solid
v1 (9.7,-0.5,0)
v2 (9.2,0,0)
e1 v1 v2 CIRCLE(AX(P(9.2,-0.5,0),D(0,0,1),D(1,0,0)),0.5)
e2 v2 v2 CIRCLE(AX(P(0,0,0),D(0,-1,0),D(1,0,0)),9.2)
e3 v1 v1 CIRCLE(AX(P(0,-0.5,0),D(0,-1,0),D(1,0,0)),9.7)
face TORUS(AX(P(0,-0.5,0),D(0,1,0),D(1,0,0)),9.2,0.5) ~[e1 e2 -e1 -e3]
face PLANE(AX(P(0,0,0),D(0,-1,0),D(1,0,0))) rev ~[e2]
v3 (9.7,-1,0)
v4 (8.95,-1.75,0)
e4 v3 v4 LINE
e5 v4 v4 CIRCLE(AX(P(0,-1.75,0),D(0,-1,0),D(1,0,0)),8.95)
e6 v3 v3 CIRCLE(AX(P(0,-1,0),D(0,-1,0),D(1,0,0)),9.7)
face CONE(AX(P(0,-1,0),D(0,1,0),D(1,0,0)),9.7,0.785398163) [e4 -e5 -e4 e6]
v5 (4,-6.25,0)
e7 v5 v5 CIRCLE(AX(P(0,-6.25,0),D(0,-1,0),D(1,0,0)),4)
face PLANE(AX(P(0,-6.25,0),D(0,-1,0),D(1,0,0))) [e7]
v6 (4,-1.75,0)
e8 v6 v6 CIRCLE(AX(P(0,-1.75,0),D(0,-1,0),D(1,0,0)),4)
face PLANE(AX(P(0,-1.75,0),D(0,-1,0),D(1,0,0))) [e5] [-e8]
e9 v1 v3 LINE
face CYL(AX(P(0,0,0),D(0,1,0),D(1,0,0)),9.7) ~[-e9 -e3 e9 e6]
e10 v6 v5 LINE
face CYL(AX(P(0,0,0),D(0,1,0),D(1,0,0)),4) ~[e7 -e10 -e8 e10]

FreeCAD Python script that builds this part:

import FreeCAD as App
import Part
import Sketcher


def edges_at(feature, points):
    """Names of the edges that pass closest to the given points."""
    edges = feature.Shape.Edges
    near = lambda p: min(range(len(edges)), key=lambda i: edges[i].distToShape(Part.Vertex(*p))[0])
    return sorted({f"Edge{near(p) + 1}" for p in points})

doc = App.newDocument("Part")
params = doc.addObject("Spreadsheet::Sheet", "Params")
for row, (alias, value) in enumerate([
    ("sketch1_diameter", "8 mm"),
    ("pad1_length", "6.25 mm"),
    ("sketch2_diameter", "8 mm"),
    ("sketch2_diameter2", "19.4 mm"),
    ("pad2_length", "1.75 mm"),
    ("chamfer_size", "0.75 mm"),
    ("fillet_radius", "0.5 mm"),
], start=1):
    params.set(f"A{row}", alias)
    params.set(f"B{row}", "=" + value)
    params.setAlias(f"B{row}", alias)

body = doc.addObject("PartDesign::Body", "Body")

# Sketch on XZ plane
sketch1 = doc.addObject("Sketcher::SketchObject", "Sketch")
body.addObject(sketch1)
sketch1.AttachmentSupport = (doc.XZ_Plane, [""])
sketch1.MapMode = "FlatFace"
sketch1.addGeometry(Part.Circle(App.Vector(0, 0, 0), App.Vector(0, 0, 1), 4), False)
sketch1.addConstraint(Sketcher.Constraint("Coincident", 0, 3, -1, 1))
sketch1.addConstraint(Sketcher.Constraint("Diameter", 0, 8.0))
sketch1.setExpression("Constraints[1]", "Params.sketch1_diameter")
pad1 = doc.addObject("PartDesign::Pad", "Pad")
body.addObject(pad1)
pad1.Profile = sketch1
pad1.setExpression("Length", "Params.pad1_length")

# Sketch on XZ plane
sketch2 = doc.addObject("Sketcher::SketchObject", "Sketch001")
body.addObject(sketch2)
sketch2.AttachmentSupport = (doc.XZ_Plane, [""])
sketch2.MapMode = "FlatFace"
sketch2.addGeometry(Part.Circle(App.Vector(0, 0, 0), App.Vector(0, 0, 1), 9.7), False)
sketch2.addGeometry(Part.Circle(App.Vector(0, 0, 0), App.Vector(0, 0, 1), 4), False)
sketch2.addConstraint(Sketcher.Constraint("Coincident", 0, 3, -1, 1))
sketch2.addConstraint(Sketcher.Constraint("Coincident", 1, 3, -1, 1))
sketch2.addConstraint(Sketcher.Constraint("Diameter", 1, 8.0))
sketch2.addConstraint(Sketcher.Constraint("Diameter", 0, 19.4))
sketch2.setExpression("Constraints[2]", "Params.sketch2_diameter")
sketch2.setExpression("Constraints[3]", "Params.sketch2_diameter2")
pad2 = doc.addObject("PartDesign::Pad", "Pad001")
body.addObject(pad2)
pad2.Profile = sketch2
pad2.setExpression("Length", "Params.pad2_length")
doc.recompute()

chamfer = doc.addObject("PartDesign::Chamfer", "Chamfer")
body.addObject(chamfer)
chamfer.Base = (pad2, edges_at(pad2, [(-9.7, -1.75, 0)]))
chamfer.setExpression("Size", "Params.chamfer_size")
doc.recompute()

fillet = doc.addObject("PartDesign::Fillet", "Fillet")
body.addObject(fillet)
fillet.Base = (chamfer, edges_at(chamfer, [(-9.7, 0, 0)]))
fillet.setExpression("Radius", "Params.fillet_radius")

doc.recompute()
